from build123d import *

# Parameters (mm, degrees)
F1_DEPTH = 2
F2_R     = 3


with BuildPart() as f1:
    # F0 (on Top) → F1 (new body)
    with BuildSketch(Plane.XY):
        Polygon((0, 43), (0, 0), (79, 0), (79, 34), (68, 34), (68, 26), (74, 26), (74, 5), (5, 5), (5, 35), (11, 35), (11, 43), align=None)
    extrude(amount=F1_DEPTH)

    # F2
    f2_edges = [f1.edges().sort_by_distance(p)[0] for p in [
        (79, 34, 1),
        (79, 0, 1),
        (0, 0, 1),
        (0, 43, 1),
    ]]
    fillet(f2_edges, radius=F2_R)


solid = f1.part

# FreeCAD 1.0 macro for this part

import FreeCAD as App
import Part
import Sketcher
from FreeCAD import Vector
Q = App.Units.Quantity


def edges_at(feature, points):
    """Names of the edges that pass closest to the given points."""
    edges = feature.Shape.Edges
    near = lambda p: min(range(len(edges)), key=lambda i: edges[i].distToShape(Part.Vertex(*p))[0])
    return sorted({f"Edge{near(p) + 1}" for p in points})

doc = App.newDocument("Part")
params = doc.addObject("Spreadsheet::Sheet", "Params")
for row, (alias, value) in enumerate([
    ("sketch1_width", "79 mm"),
    ("sketch1_width2", "11 mm"),
    ("sketch1_width3", "6 mm"),
    ("sketch1_height", "43 mm"),
    ("sketch1_height2", "34 mm"),
    ("pad1_length", "2 mm"),
    ("fillet_radius", "3 mm"),
], start=1):
    params.set(f"A{row}", alias)
    params.set(f"B{row}", "=" + value)
    params.setAlias(f"B{row}", alias)

body = doc.addObject("PartDesign::Body", "Body")

sketch1 = body.newObject("Sketcher::SketchObject", "Sketch")
sketch1.AttachmentSupport = (doc.getObject("XY_Plane"), [""])
sketch1.MapMode = "FlatFace"
sketch1.addGeometry(Part.LineSegment(Vector(0, 43, 0), Vector(0, 0, 0)), False)
sketch1.addGeometry(Part.LineSegment(Vector(0, 0, 0), Vector(79, 0, 0)), False)
sketch1.addGeometry(Part.LineSegment(Vector(79, 0, 0), Vector(79, 34, 0)), False)
sketch1.addGeometry(Part.LineSegment(Vector(79, 34, 0), Vector(68, 34, 0)), False)
sketch1.addGeometry(Part.LineSegment(Vector(68, 34, 0), Vector(68, 26, 0)), False)
sketch1.addGeometry(Part.LineSegment(Vector(68, 26, 0), Vector(74, 26, 0)), False)
sketch1.addGeometry(Part.LineSegment(Vector(74, 26, 0), Vector(74, 5, 0)), False)
sketch1.addGeometry(Part.LineSegment(Vector(74, 5, 0), Vector(5, 5, 0)), False)
sketch1.addGeometry(Part.LineSegment(Vector(5, 5, 0), Vector(5, 35, 0)), False)
sketch1.addGeometry(Part.LineSegment(Vector(5, 35, 0), Vector(11, 35, 0)), False)
sketch1.addGeometry(Part.LineSegment(Vector(11, 35, 0), Vector(11, 43, 0)), False)
sketch1.addGeometry(Part.LineSegment(Vector(11, 43, 0), Vector(0, 43, 0)), False)
sketch1.addConstraint(Sketcher.Constraint("Coincident", 0, 2, 1, 1))
sketch1.addConstraint(Sketcher.Constraint("Coincident", 1, 2, 2, 1))
sketch1.addConstraint(Sketcher.Constraint("Coincident", 2, 2, 3, 1))
sketch1.addConstraint(Sketcher.Constraint("Coincident", 3, 2, 4, 1))
sketch1.addConstraint(Sketcher.Constraint("Coincident", 4, 2, 5, 1))
sketch1.addConstraint(Sketcher.Constraint("Coincident", 5, 2, 6, 1))
sketch1.addConstraint(Sketcher.Constraint("Coincident", 6, 2, 7, 1))
sketch1.addConstraint(Sketcher.Constraint("Coincident", 7, 2, 8, 1))
sketch1.addConstraint(Sketcher.Constraint("Coincident", 8, 2, 9, 1))
sketch1.addConstraint(Sketcher.Constraint("Coincident", 9, 2, 10, 1))
sketch1.addConstraint(Sketcher.Constraint("Coincident", 10, 2, 11, 1))
sketch1.addConstraint(Sketcher.Constraint("Coincident", 11, 2, 0, 1))
sketch1.addConstraint(Sketcher.Constraint("Vertical", 0))
sketch1.addConstraint(Sketcher.Constraint("Horizontal", 1))
sketch1.addConstraint(Sketcher.Constraint("Vertical", 2))
sketch1.addConstraint(Sketcher.Constraint("Horizontal", 3))
sketch1.addConstraint(Sketcher.Constraint("Vertical", 4))
sketch1.addConstraint(Sketcher.Constraint("Horizontal", 5))
sketch1.addConstraint(Sketcher.Constraint("Vertical", 6))
sketch1.addConstraint(Sketcher.Constraint("Horizontal", 7))
sketch1.addConstraint(Sketcher.Constraint("Vertical", 8))
sketch1.addConstraint(Sketcher.Constraint("Horizontal", 9))
sketch1.addConstraint(Sketcher.Constraint("Vertical", 10))
sketch1.addConstraint(Sketcher.Constraint("Horizontal", 11))
sketch1.addConstraint(Sketcher.Constraint("Coincident", 0, 2, -1, 1))
sketch1.addConstraint(Sketcher.Constraint("Equal", 5, 9))
sketch1.addConstraint(Sketcher.Constraint("Equal", 3, 11))
sketch1.addConstraint(Sketcher.Constraint("Equal", 4, 10))
sketch1.addConstraint(Sketcher.Constraint("DistanceX", 1, 1, 1, 2, Q("79 mm")))
sketch1.addConstraint(Sketcher.Constraint("DistanceX", 3, 2, 3, 1, Q("11 mm")))
sketch1.addConstraint(Sketcher.Constraint("DistanceX", 5, 1, 5, 2, Q("6 mm")))
sketch1.addConstraint(Sketcher.Constraint("DistanceY", 0, 2, 0, 1, Q("43 mm")))
sketch1.addConstraint(Sketcher.Constraint("DistanceY", 2, 1, 2, 2, Q("34 mm")))
sketch1.addConstraint(Sketcher.Constraint("DistanceY", 4, 2, 4, 1, Q("8 mm")))
sketch1.addConstraint(Sketcher.Constraint("DistanceY", 6, 2, 6, 1, Q("21 mm")))
sketch1.setExpression("Constraints[28]", "Params.sketch1_width")
sketch1.setExpression("Constraints[29]", "Params.sketch1_width2")
sketch1.setExpression("Constraints[30]", "Params.sketch1_width3")
sketch1.setExpression("Constraints[31]", "Params.sketch1_height")
sketch1.setExpression("Constraints[32]", "Params.sketch1_height2")
pad1 = body.newObject("PartDesign::Pad", "Pad")
pad1.Profile = sketch1
pad1.setExpression("Length", "Params.pad1_length")
doc.recompute()

fillet = body.newObject("PartDesign::Fillet", "Fillet")
fillet.Base = (pad1, edges_at(pad1, [
    (79, 34, 1),
    (79, 0, 1),
    (0, 0, 1),
    (0, 43, 1),
]))
fillet.setExpression("Radius", "Params.fillet_radius")

doc.recompute()
